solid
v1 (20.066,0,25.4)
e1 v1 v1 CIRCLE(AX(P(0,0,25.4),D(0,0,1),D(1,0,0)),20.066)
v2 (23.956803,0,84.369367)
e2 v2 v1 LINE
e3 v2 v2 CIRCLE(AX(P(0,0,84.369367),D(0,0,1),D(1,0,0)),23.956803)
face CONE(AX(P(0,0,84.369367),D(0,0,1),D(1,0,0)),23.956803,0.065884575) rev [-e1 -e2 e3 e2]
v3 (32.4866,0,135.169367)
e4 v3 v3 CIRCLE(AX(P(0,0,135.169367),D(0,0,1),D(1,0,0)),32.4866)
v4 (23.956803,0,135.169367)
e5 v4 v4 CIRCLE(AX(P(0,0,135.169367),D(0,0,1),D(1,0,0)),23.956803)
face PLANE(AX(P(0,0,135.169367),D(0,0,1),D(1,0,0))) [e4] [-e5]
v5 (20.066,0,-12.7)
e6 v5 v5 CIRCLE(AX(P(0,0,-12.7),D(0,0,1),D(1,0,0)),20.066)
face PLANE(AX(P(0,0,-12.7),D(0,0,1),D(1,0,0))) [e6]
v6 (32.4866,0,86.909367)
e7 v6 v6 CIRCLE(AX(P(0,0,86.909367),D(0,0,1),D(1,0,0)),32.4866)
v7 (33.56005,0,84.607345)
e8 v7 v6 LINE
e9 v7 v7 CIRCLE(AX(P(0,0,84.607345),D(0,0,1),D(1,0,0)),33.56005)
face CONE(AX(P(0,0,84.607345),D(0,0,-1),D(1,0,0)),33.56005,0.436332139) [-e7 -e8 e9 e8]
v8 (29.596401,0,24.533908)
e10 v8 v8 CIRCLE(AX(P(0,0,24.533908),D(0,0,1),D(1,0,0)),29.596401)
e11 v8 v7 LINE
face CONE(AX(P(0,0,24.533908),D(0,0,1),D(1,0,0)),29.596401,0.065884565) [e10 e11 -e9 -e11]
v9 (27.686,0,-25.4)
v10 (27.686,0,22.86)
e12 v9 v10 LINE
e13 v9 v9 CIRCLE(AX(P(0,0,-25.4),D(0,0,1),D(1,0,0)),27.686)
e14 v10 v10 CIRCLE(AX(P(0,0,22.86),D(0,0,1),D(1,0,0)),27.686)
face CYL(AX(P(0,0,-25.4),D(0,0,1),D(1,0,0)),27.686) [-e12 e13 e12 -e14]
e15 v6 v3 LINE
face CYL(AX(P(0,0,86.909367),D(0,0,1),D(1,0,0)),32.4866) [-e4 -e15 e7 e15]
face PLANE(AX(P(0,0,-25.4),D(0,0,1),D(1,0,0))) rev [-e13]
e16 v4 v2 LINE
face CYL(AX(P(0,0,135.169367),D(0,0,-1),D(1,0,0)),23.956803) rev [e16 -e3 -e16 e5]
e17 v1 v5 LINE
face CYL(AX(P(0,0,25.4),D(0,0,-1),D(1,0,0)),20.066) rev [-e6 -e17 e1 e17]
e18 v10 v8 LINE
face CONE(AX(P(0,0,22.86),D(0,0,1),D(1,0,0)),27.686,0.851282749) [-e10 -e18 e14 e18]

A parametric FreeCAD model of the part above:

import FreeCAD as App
import Part
import Sketcher
from FreeCAD import Vector
Q = App.Units.Quantity


def add_polygon(sketch, points):
    """Adds a closed chain of lines whose ends are joined by coincident constraints."""
    first, n = sketch.GeometryCount, len(points)
    for a, b in zip(points, points[1:] + points[:1]):
        sketch.addGeometry(Part.LineSegment(App.Vector(*a, 0), App.Vector(*b, 0)), False)
    for i in range(n):
        sketch.addConstraint(Sketcher.Constraint("Coincident", first + i, 2, first + (i + 1) % n, 1))

doc = App.newDocument("Part")
body = doc.addObject("PartDesign::Body", "Body")

# Sketch on XZ plane
sketch1 = body.newObject("Sketcher::SketchObject", "Sketch")
sketch1.AttachmentSupport = (doc.getObject("XZ_Plane"), [""])
sketch1.MapMode = "FlatFace"
add_polygon(sketch1, [(32.5, 86.9), (32.5, 135.2), (24, 135.2), (24, 84.4), (20.1, 25.4), (20.1, -12.7), (0, -12.7), (0, -25.4), (27.7, -25.4), (27.7, 22.9), (29.6, 24.5), (33.6, 84.6)])  # lines 0-11
sketch1.addConstraint([
    Sketcher.Constraint("Vertical", 0),
    Sketcher.Constraint("Horizontal", 1),
    Sketcher.Constraint("Vertical", 2),
    Sketcher.Constraint("Vertical", 4),
    Sketcher.Constraint("Horizontal", 5),
    Sketcher.Constraint("Vertical", 6),
    Sketcher.Constraint("Horizontal", 7),
    Sketcher.Constraint("Vertical", 8),
    Sketcher.Constraint("PointOnObject", 5, 2, -2),
    Sketcher.Constraint("Parallel", 3, 10),
    Sketcher.Constraint("Equal", 0, 8),
    Sketcher.Constraint("Equal", 9, 11),
    Sketcher.Constraint("DistanceY", 2, 2, 2, 1, Q("2 in")),
    Sketcher.Constraint("DistanceY", 0, 1, 0, 2, Q("1.9 in")),
    Sketcher.Constraint("DistanceY", 4, 2, 4, 1, Q("1.5 in")),
    Sketcher.Constraint("DistanceY", 6, 2, 6, 1, Q("0.5 in")),
    Sketcher.Constraint("DistanceY", -1, 1, 3, 2, Q("1 in")),
    Sketcher.Constraint("Angle", 11, Q("114.99999 deg")),
    Sketcher.Constraint("Distance", 9, Q("0.1 in")),
    Sketcher.Constraint("DistanceX", 5, 2, 5, 1, Q("0.79 in")),
    Sketcher.Constraint("DistanceX", 7, 1, 7, 2, Q("1.09 in")),
    Sketcher.Constraint("DistanceX", -1, 1, 0, 2, Q("1.279 in")),
    Sketcher.Constraint("DistanceX", -1, 1, 9, 2, Q("29.596401 mm")),
    Sketcher.Constraint("DistanceY", 9, 2, 11, 2, Q("62.375459 mm")),
])
revolution = body.newObject("PartDesign::Revolution", "Revolution")
revolution.Profile = sketch1
revolution.ReferenceAxis = (sketch1, ["V_Axis"])
revolution.Angle = 360

doc.recompute()
